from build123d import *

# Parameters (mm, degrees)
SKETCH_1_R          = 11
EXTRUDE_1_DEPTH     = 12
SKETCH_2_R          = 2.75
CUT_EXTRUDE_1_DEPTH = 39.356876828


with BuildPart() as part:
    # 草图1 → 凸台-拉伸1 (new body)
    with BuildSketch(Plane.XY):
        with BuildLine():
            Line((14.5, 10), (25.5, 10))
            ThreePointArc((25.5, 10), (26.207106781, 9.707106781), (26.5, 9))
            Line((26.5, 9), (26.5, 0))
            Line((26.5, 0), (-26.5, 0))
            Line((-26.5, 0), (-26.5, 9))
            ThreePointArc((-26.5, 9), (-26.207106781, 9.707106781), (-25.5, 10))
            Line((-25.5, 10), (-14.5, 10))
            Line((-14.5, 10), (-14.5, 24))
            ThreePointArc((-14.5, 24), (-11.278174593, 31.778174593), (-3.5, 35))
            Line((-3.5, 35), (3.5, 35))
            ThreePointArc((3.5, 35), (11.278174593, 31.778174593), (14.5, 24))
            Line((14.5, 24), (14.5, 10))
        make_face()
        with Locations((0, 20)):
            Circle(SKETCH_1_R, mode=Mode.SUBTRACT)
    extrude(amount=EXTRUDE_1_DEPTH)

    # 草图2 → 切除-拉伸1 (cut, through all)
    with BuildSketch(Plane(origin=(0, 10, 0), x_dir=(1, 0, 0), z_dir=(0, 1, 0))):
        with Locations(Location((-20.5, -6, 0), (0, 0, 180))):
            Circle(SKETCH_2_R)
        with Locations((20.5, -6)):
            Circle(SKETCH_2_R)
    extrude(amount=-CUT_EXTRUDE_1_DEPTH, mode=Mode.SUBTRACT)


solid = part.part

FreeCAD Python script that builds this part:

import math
import FreeCAD as App
import Part
import Sketcher
from FreeCAD import Vector
Q = App.Units.Quantity

doc = App.newDocument("Part")
body = doc.addObject("PartDesign::Body", "Body")

sketch1 = body.newObject("Sketcher::SketchObject", "Sketch")
sketch1.AttachmentSupport = (doc.getObject("XY_Plane"), [""])
sketch1.MapMode = "FlatFace"
sketch1.addGeometry(Part.LineSegment(Vector(25.5, 10, 0), Vector(14.5, 10, 0)), False)
sketch1.addGeometry(Part.LineSegment(Vector(14.5, 10, 0), Vector(14.5, 24, 0)), False)
sketch1.addGeometry(Part.ArcOfCircle(Part.Circle(Vector(3.5, 24, 0), Vector(0, 0, 1), 11), math.radians(0), math.radians(90)), False)
sketch1.addGeometry(Part.LineSegment(Vector(3.5, 35, 0), Vector(-3.5, 35, 0)), False)
sketch1.addGeometry(Part.ArcOfCircle(Part.Circle(Vector(-3.5, 24, 0), Vector(0, 0, 1), 11), math.radians(90), math.radians(180)), False)
sketch1.addGeometry(Part.LineSegment(Vector(-14.5, 24, 0), Vector(-14.5, 10, 0)), False)
sketch1.addGeometry(Part.LineSegment(Vector(-14.5, 10, 0), Vector(-25.5, 10, 0)), False)
sketch1.addGeometry(Part.ArcOfCircle(Part.Circle(Vector(-25.5, 9, 0), Vector(0, 0, 1), 1), math.radians(90), math.radians(180)), False)
sketch1.addGeometry(Part.LineSegment(Vector(-26.5, 9, 0), Vector(-26.5, 0, 0)), False)
sketch1.addGeometry(Part.LineSegment(Vector(-26.5, 0, 0), Vector(26.5, 0, 0)), False)
sketch1.addGeometry(Part.LineSegment(Vector(26.5, 0, 0), Vector(26.5, 9, 0)), False)
sketch1.addGeometry(Part.ArcOfCircle(Part.Circle(Vector(25.5, 9, 0), Vector(0, 0, 1), 1), math.radians(0), math.radians(90)), False)
sketch1.addGeometry(Part.Circle(Vector(0, 20, 0), Vector(0, 0, 1), 11), False)
sketch1.addConstraint(Sketcher.Constraint("Coincident", 0, 2, 1, 1))
sketch1.addConstraint(Sketcher.Constraint("Tangent", 1, 2, 2, 1))
sketch1.addConstraint(Sketcher.Constraint("Tangent", 2, 2, 3, 1))
sketch1.addConstraint(Sketcher.Constraint("Tangent", 3, 2, 4, 1))
sketch1.addConstraint(Sketcher.Constraint("Tangent", 4, 2, 5, 1))
sketch1.addConstraint(Sketcher.Constraint("Coincident", 5, 2, 6, 1))
sketch1.addConstraint(Sketcher.Constraint("Tangent", 6, 2, 7, 1))
sketch1.addConstraint(Sketcher.Constraint("Tangent", 7, 2, 8, 1))
sketch1.addConstraint(Sketcher.Constraint("Coincident", 8, 2, 9, 1))
sketch1.addConstraint(Sketcher.Constraint("Coincident", 9, 2, 10, 1))
sketch1.addConstraint(Sketcher.Constraint("Tangent", 10, 2, 11, 1))
sketch1.addConstraint(Sketcher.Constraint("Tangent", 11, 2, 0, 1))
sketch1.addConstraint(Sketcher.Constraint("Horizontal", 0))
sketch1.addConstraint(Sketcher.Constraint("Vertical", 1))
sketch1.addConstraint(Sketcher.Constraint("Horizontal", 3))
sketch1.addConstraint(Sketcher.Constraint("Vertical", 5))
sketch1.addConstraint(Sketcher.Constraint("Horizontal", 6))
sketch1.addConstraint(Sketcher.Constraint("Vertical", 8))
sketch1.addConstraint(Sketcher.Constraint("Horizontal", 9))
sketch1.addConstraint(Sketcher.Constraint("Vertical", 10))
sketch1.addConstraint(Sketcher.Constraint("Equal", 2, 4))
sketch1.addConstraint(Sketcher.Constraint("Equal", 7, 11))
sketch1.addConstraint(Sketcher.Constraint("Equal", 4, 12))
sketch1.addConstraint(Sketcher.Constraint("Symmetric", 8, 2, 9, 2, -1, 1))
sketch1.addConstraint(Sketcher.Constraint("Symmetric", 0, 2, 5, 2, -2))
sketch1.addConstraint(Sketcher.Constraint("PointOnObject", 12, 3, -2))
sketch1.addConstraint(Sketcher.Constraint("Diameter", 12, Q("22 mm")))
sketch1.addConstraint(Sketcher.Constraint("Radius", 7, Q("1 mm")))
sketch1.addConstraint(Sketcher.Constraint("DistanceX", 0, 2, 0, 1, Q("11 mm")))
sketch1.addConstraint(Sketcher.Constraint("DistanceX", 3, 2, 3, 1, Q("7 mm")))
sketch1.addConstraint(Sketcher.Constraint("DistanceY", 1, 1, 1, 2, Q("14 mm")))
sketch1.addConstraint(Sketcher.Constraint("DistanceY", 8, 2, 8, 1, Q("9 mm")))
sketch1.addConstraint(Sketcher.Constraint("DistanceY", -1, 1, 12, 3, Q("20 mm")))
pad1 = body.newObject("PartDesign::Pad", "Pad")
pad1.Profile = sketch1
pad1.Length = 12

sketch2 = body.newObject("Sketcher::SketchObject", "Sketch001")
sketch2.AttachmentSupport = (doc.getObject("XZ_Plane"), [""])
sketch2.MapMode = "FlatFace"
sketch2.AttachmentOffset = App.Placement(Vector(0, 0, -10), App.Rotation())
sketch2.addGeometry(Part.Circle(Vector(-20.5, 6, 0), Vector(0, 0, 1), 2.75), False)
sketch2.addGeometry(Part.Circle(Vector(20.5, 6, 0), Vector(0, 0, 1), 2.75), False)
sketch2.addConstraint(Sketcher.Constraint("Equal", 0, 1))
sketch2.addConstraint(Sketcher.Constraint("Symmetric", 0, 3, 1, 3, -2))
sketch2.addConstraint(Sketcher.Constraint("Diameter", 0, Q("5.5 mm")))
sketch2.addConstraint(Sketcher.Constraint("DistanceY", -1, 1, 0, 3, Q("6 mm")))
sketch2.addConstraint(Sketcher.Constraint("DistanceX", 0, 3, 1, 3, Q("41 mm")))
pocket1 = body.newObject("PartDesign::Pocket", "Pocket")
pocket1.Profile = sketch2
pocket1.Type = "ThroughAll"
pocket1.Reversed = True

doc.recompute()
